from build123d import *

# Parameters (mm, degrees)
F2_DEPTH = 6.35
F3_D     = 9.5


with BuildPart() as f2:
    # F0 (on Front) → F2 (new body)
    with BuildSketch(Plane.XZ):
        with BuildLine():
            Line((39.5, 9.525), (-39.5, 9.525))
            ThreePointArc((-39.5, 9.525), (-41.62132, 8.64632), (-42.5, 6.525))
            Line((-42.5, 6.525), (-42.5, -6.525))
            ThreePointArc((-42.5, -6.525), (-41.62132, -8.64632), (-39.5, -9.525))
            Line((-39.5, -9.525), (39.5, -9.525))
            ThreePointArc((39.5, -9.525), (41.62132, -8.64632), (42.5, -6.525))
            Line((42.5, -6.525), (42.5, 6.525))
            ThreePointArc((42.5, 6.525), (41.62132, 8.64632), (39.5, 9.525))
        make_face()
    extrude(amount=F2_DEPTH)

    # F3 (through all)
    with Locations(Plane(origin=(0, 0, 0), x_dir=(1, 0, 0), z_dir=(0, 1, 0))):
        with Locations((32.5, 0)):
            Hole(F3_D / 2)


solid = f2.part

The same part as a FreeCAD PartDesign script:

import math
import FreeCAD as App
import Part
import Sketcher

V = App.Vector
Q = App.Units.Quantity

doc = App.newDocument("Part")
body = doc.addObject("PartDesign::Body", "Body")

sketch1 = doc.addObject("Sketcher::SketchObject", "Sketch")
body.addObject(sketch1)
sketch1.AttachmentSupport = (doc.XZ_Plane, [""])
sketch1.MapMode = "FlatFace"
sketch1.addGeometry([
    Part.LineSegment(V(39.5, 9.525, 0), V(-39.5, 9.525, 0)),
    Part.ArcOfCircle(Part.Circle(V(-39.499999, 6.524999, 0), V(0, 0, 1), 3.000001), math.radians(90.000022), math.radians(179.999978)),
    Part.LineSegment(V(-42.5, 6.525, 0), V(-42.5, -6.525, 0)),
    Part.ArcOfCircle(Part.Circle(V(-39.499999, -6.524999, 0), V(0, 0, 1), 3.000001), math.radians(-179.999978), math.radians(-90.000022)),
    Part.LineSegment(V(-39.5, -9.525, 0), V(39.5, -9.525, 0)),
    Part.ArcOfCircle(Part.Circle(V(39.499999, -6.524999, 0), V(0, 0, 1), 3.000001), math.radians(-89.999978), math.radians(-0.000022)),
    Part.LineSegment(V(42.5, -6.525, 0), V(42.5, 6.525, 0)),
    Part.ArcOfCircle(Part.Circle(V(39.499999, 6.524999, 0), V(0, 0, 1), 3.000001), math.radians(0.000022), math.radians(89.999978)),
], False)
sketch1.addConstraint([
    Sketcher.Constraint("Tangent", 0, 2, 1, 1),
    Sketcher.Constraint("Tangent", 1, 2, 2, 1),
    Sketcher.Constraint("Tangent", 2, 2, 3, 1),
    Sketcher.Constraint("Tangent", 3, 2, 4, 1),
    Sketcher.Constraint("Tangent", 4, 2, 5, 1),
    Sketcher.Constraint("Tangent", 5, 2, 6, 1),
    Sketcher.Constraint("Tangent", 6, 2, 7, 1),
    Sketcher.Constraint("Tangent", 7, 2, 0, 1),
    Sketcher.Constraint("Horizontal", 0),
    Sketcher.Constraint("Vertical", 2),
    Sketcher.Constraint("Horizontal", 4),
    Sketcher.Constraint("Vertical", 6),
    Sketcher.Constraint("Equal", 1, 3),
    Sketcher.Constraint("Equal", 3, 5),
    Sketcher.Constraint("Equal", 5, 7),
    Sketcher.Constraint("Symmetric", 1, 3, 5, 3, -1, 1),
    Sketcher.Constraint("Radius", 1, Q("3.000001 mm")),
    Sketcher.Constraint("DistanceX", 0, 2, 0, 1, Q("79 mm")),
    Sketcher.Constraint("DistanceY", 2, 2, 2, 1, Q("13.05 mm")),
])
pad1 = doc.addObject("PartDesign::Pad", "Pad")
body.addObject(pad1)
pad1.Profile = sketch1
pad1.Length = 6.35

sketch2 = doc.addObject("Sketcher::SketchObject", "Sketch001")
body.addObject(sketch2)
sketch2.AttachmentSupport = (doc.XZ_Plane, [""])
sketch2.MapMode = "FlatFace"
sketch2.addGeometry(Part.Circle(V(32.5, 0, 0), V(0, 0, 1), 4.75), False)
sketch2.addConstraint([
    Sketcher.Constraint("PointOnObject", 0, 3, -1),
    Sketcher.Constraint("Diameter", 0, Q("9.5 mm")),
    Sketcher.Constraint("DistanceX", -1, 1, 0, 3, Q("32.5 mm")),
])
doc.recompute()
hole = doc.addObject("PartDesign::Hole", "Hole")
body.addObject(hole)
hole.Profile = sketch2
hole.ThreadType = "None"
hole.Diameter = 9.5
hole.DepthType = "ThroughAll"
hole.Reversed = True

doc.recompute()
